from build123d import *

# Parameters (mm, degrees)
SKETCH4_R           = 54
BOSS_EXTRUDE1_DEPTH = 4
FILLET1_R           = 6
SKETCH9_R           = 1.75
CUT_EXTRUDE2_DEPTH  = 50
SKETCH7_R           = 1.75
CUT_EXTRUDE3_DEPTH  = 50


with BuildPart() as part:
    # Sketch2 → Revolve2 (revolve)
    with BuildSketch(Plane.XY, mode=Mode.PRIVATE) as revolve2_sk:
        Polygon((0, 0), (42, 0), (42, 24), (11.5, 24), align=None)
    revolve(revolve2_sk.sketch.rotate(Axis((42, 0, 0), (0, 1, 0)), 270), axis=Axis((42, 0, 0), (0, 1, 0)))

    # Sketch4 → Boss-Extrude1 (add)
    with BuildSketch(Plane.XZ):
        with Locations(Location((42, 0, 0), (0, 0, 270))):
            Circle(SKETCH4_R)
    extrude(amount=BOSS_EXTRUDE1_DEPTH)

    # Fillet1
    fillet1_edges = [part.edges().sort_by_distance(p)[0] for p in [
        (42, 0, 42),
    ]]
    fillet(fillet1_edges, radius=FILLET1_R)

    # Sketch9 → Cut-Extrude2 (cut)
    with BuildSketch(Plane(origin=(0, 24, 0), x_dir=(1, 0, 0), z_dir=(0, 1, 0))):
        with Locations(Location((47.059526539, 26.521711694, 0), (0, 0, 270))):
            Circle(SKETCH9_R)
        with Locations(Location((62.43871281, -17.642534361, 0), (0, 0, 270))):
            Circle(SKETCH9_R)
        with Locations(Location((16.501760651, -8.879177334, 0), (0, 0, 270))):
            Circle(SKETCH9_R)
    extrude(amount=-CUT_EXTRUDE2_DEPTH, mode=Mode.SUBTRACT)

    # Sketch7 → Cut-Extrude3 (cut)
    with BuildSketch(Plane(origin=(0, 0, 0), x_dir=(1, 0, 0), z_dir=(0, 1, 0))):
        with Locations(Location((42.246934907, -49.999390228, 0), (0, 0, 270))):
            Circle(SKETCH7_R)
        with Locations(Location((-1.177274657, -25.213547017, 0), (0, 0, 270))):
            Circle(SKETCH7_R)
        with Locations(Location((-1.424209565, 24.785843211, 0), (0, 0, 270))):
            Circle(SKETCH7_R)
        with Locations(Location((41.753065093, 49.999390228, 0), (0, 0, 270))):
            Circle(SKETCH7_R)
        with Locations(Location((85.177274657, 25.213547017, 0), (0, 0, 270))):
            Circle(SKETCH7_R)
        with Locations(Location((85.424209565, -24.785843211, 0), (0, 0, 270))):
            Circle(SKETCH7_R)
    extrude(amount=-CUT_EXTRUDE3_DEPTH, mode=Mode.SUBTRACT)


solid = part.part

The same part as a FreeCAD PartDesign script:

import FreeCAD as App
import Part
import Sketcher
from FreeCAD import Vector
Q = App.Units.Quantity


def edges_at(feature, points):
    """Names of the edges that pass closest to the given points."""
    edges = feature.Shape.Edges
    near = lambda p: min(range(len(edges)), key=lambda i: edges[i].distToShape(Part.Vertex(*p))[0])
    return sorted({f"Edge{near(p) + 1}" for p in points})


def add_polygon(sketch, points):
    """Adds a closed chain of lines whose ends are joined by coincident constraints."""
    first, n = sketch.GeometryCount, len(points)
    for a, b in zip(points, points[1:] + points[:1]):
        sketch.addGeometry(Part.LineSegment(App.Vector(*a, 0), App.Vector(*b, 0)), False)
    for i in range(n):
        sketch.addConstraint(Sketcher.Constraint("Coincident", first + i, 2, first + (i + 1) % n, 1))

doc = App.newDocument("Part")
body = doc.addObject("PartDesign::Body", "Body")

# Sketch on XY plane
sketch1 = doc.addObject("Sketcher::SketchObject", "Sketch")
body.addObject(sketch1)
sketch1.AttachmentSupport = (doc.XY_Plane, [""])
sketch1.MapMode = "FlatFace"
add_polygon(sketch1, [(0, 0), (42, 0), (42, 24), (12, 24)])  # lines 0-3
sketch1.addGeometry(Part.LineSegment(Vector(42, 0, 0), Vector(42, 24, 0)), True)  # axis
sketch1.addConstraint(Sketcher.Constraint("Horizontal", 0))
sketch1.addConstraint(Sketcher.Constraint("Vertical", 1))
sketch1.addConstraint(Sketcher.Constraint("Horizontal", 2))
sketch1.addConstraint(Sketcher.Constraint("Vertical", 4))
sketch1.addConstraint(Sketcher.Constraint("Coincident", 3, 2, -1, 1))
sketch1.addConstraint(Sketcher.Constraint("Coincident", 4, 1, 0, 2))
sketch1.addConstraint(Sketcher.Constraint("Horizontal", 2, 2, 4, 2))
sketch1.addConstraint(Sketcher.Constraint("DistanceX", 0, 1, 0, 2, Q("42 mm")))
sketch1.addConstraint(Sketcher.Constraint("DistanceY", 1, 1, 1, 2, Q("24 mm")))
sketch1.addConstraint(Sketcher.Constraint("DistanceX", 2, 2, 2, 1, Q("30.5 mm")))
revolution = doc.addObject("PartDesign::Revolution", "Revolution")
body.addObject(revolution)
revolution.Profile = sketch1
revolution.ReferenceAxis = (sketch1, ["Axis0"])
revolution.Angle = 360

# Sketch on XZ plane
sketch2 = doc.addObject("Sketcher::SketchObject", "Sketch001")
body.addObject(sketch2)
sketch2.AttachmentSupport = (doc.XZ_Plane, [""])
sketch2.MapMode = "FlatFace"
sketch2.addGeometry(Part.Circle(Vector(42, 0, 0), Vector(0, 0, 1), 54), False)
sketch2.addConstraint(Sketcher.Constraint("PointOnObject", 0, 3, -1))
sketch2.addConstraint(Sketcher.Constraint("Diameter", 0, Q("108 mm")))
sketch2.addConstraint(Sketcher.Constraint("DistanceX", -1, 1, 0, 3, Q("42 mm")))
pad1 = doc.addObject("PartDesign::Pad", "Pad")
body.addObject(pad1)
pad1.Profile = sketch2
pad1.Length = 4
doc.recompute()

fillet = doc.addObject("PartDesign::Fillet", "Fillet")
body.addObject(fillet)
fillet.Base = (pad1, edges_at(pad1, [(42, 0, 42)]))
fillet.Radius = 6

# Sketch on XZ plane
sketch3 = doc.addObject("Sketcher::SketchObject", "Sketch002")
body.addObject(sketch3)
sketch3.AttachmentSupport = (doc.XZ_Plane, [""])
sketch3.MapMode = "FlatFace"
sketch3.AttachmentOffset = App.Placement(Vector(0, 0, -24), App.Rotation())
sketch3.addGeometry(Part.Circle(Vector(47.1, -26.5, 0), Vector(0, 0, 1), 1.8), False)
sketch3.addGeometry(Part.Circle(Vector(62.4, 17.6, 0), Vector(0, 0, 1), 1.8), False)
sketch3.addGeometry(Part.Circle(Vector(16.5, 8.9, 0), Vector(0, 0, 1), 1.8), False)
sketch3.addConstraint(Sketcher.Constraint("Equal", 0, 1))
sketch3.addConstraint(Sketcher.Constraint("Equal", 1, 2))
sketch3.addConstraint(Sketcher.Constraint("Diameter", 0, Q("3.5 mm")))
sketch3.addConstraint(Sketcher.Constraint("DistanceY", 0, 3, -1, 1, Q("26.521712 mm")))
sketch3.addConstraint(Sketcher.Constraint("DistanceX", -1, 1, 2, 3, Q("16.501761 mm")))
sketch3.addConstraint(Sketcher.Constraint("DistanceY", 0, 3, 2, 3, Q("35.400889 mm")))
sketch3.addConstraint(Sketcher.Constraint("DistanceX", -1, 1, 0, 3, Q("47.059527 mm")))
sketch3.addConstraint(Sketcher.Constraint("DistanceX", -1, 1, 1, 3, Q("62.438713 mm")))
sketch3.addConstraint(Sketcher.Constraint("DistanceY", -1, 1, 1, 3, Q("17.642534 mm")))
pocket1 = doc.addObject("PartDesign::Pocket", "Pocket")
body.addObject(pocket1)
pocket1.Profile = sketch3
pocket1.Length = 50
pocket1.Reversed = True

# Sketch on XZ plane
sketch4 = doc.addObject("Sketcher::SketchObject", "Sketch003")
body.addObject(sketch4)
sketch4.AttachmentSupport = (doc.XZ_Plane, [""])
sketch4.MapMode = "FlatFace"
sketch4.addGeometry(Part.Circle(Vector(42.2, 50, 0), Vector(0, 0, 1), 1.8), False)
sketch4.addGeometry(Part.Circle(Vector(-1.2, 25.2, 0), Vector(0, 0, 1), 1.8), False)
sketch4.addGeometry(Part.Circle(Vector(-1.4, -24.8, 0), Vector(0, 0, 1), 1.8), False)
sketch4.addGeometry(Part.Circle(Vector(41.8, -50, 0), Vector(0, 0, 1), 1.8), False)
sketch4.addGeometry(Part.Circle(Vector(85.2, -25.2, 0), Vector(0, 0, 1), 1.8), False)
sketch4.addGeometry(Part.Circle(Vector(85.4, 24.8, 0), Vector(0, 0, 1), 1.8), False)
sketch4.addConstraint(Sketcher.Constraint("Equal", 0, 1))
sketch4.addConstraint(Sketcher.Constraint("Equal", 1, 2))
sketch4.addConstraint(Sketcher.Constraint("Equal", 2, 3))
sketch4.addConstraint(Sketcher.Constraint("Equal", 3, 4))
sketch4.addConstraint(Sketcher.Constraint("Equal", 4, 5))
sketch4.addConstraint(Sketcher.Constraint("Diameter", 0, Q("3.5 mm")))
sketch4.addConstraint(Sketcher.Constraint("DistanceY", -1, 1, 0, 3, Q("49.99939 mm")))
sketch4.addConstraint(Sketcher.Constraint("DistanceX", 2, 3, -1, 1, Q("1.42421 mm")))
sketch4.addConstraint(Sketcher.Constraint("DistanceY", 3, 3, -1, 1, Q("49.99939 mm")))
sketch4.addConstraint(Sketcher.Constraint("DistanceX", -1, 1, 5, 3, Q("85.42421 mm")))
sketch4.addConstraint(Sketcher.Constraint("DistanceX", 1, 3, 0, 3, Q("43.42421 mm")))
sketch4.addConstraint(Sketcher.Constraint("DistanceY", 2, 3, 1, 3, Q("49.99939 mm")))
sketch4.addConstraint(Sketcher.Constraint("DistanceX", 1, 3, 3, 3, Q("42.93034 mm")))
sketch4.addConstraint(Sketcher.Constraint("DistanceX", 3, 3, 4, 3, Q("43.42421 mm")))
sketch4.addConstraint(Sketcher.Constraint("DistanceY", 4, 3, 5, 3, Q("49.99939 mm")))
sketch4.addConstraint(Sketcher.Constraint("DistanceX", -1, 1, 0, 3, Q("42.246935 mm")))
sketch4.addConstraint(Sketcher.Constraint("DistanceY", -1, 1, 1, 3, Q("25.213547 mm")))
sketch4.addConstraint(Sketcher.Constraint("DistanceY", 4, 3, -1, 1, Q("25.213547 mm")))
pocket2 = doc.addObject("PartDesign::Pocket", "Pocket001")
body.addObject(pocket2)
pocket2.Profile = sketch4
pocket2.Length = 50
pocket2.Reversed = True

doc.recompute()
